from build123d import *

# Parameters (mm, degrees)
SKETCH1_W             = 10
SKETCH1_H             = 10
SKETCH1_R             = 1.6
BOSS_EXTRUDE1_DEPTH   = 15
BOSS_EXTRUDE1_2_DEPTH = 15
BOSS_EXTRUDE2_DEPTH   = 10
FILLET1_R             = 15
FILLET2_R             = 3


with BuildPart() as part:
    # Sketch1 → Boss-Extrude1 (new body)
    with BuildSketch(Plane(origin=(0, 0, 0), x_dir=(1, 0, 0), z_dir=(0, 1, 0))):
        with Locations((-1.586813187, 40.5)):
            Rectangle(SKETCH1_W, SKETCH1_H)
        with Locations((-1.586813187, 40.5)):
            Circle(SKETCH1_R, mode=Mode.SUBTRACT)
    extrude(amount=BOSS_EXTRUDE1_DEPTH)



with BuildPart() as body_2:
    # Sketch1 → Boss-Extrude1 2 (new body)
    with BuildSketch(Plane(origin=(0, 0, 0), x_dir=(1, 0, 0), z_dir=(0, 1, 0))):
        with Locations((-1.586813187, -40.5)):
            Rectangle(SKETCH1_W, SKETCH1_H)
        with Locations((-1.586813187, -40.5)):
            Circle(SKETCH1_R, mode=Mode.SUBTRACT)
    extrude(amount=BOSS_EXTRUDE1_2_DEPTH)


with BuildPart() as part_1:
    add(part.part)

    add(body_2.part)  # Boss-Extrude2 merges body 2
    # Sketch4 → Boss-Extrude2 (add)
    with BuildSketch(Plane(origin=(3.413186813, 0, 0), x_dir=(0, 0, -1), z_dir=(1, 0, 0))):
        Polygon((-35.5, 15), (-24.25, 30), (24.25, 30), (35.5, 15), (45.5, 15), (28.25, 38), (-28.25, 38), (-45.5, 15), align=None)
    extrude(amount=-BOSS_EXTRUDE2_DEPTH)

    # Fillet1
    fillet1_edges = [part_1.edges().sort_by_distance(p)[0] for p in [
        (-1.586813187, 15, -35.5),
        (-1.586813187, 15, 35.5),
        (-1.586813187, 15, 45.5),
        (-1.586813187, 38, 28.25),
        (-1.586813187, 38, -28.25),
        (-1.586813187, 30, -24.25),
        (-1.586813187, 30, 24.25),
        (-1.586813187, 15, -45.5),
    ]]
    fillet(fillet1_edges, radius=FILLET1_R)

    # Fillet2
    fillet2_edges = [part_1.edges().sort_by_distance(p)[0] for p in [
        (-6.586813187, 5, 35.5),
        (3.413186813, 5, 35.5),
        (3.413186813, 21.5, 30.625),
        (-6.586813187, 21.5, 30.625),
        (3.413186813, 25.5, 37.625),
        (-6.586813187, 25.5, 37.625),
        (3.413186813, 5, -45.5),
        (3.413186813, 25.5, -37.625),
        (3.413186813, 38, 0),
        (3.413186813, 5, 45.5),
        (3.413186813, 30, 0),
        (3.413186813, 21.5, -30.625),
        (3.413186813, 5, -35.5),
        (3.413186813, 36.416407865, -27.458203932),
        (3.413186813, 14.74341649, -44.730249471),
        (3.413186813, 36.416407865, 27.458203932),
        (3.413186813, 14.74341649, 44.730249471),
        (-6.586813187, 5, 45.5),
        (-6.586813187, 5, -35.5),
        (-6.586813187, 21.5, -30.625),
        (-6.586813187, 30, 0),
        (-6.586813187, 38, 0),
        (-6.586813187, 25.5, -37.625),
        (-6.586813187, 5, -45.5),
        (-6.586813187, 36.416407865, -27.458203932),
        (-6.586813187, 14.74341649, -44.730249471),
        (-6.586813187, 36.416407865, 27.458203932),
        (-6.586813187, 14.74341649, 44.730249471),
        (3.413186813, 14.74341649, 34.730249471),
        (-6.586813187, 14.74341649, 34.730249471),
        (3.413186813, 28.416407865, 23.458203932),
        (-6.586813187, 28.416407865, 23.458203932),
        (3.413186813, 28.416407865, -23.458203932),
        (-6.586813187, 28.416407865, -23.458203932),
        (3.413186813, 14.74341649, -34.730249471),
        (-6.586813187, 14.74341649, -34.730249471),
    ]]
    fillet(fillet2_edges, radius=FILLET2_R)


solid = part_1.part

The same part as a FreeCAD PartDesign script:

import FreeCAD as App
import Part
import Sketcher


def edges_at(feature, points):
    """Names of the edges that pass closest to the given points."""
    edges = feature.Shape.Edges
    near = lambda p: min(range(len(edges)), key=lambda i: edges[i].distToShape(Part.Vertex(*p))[0])
    return sorted({f"Edge{near(p) + 1}" for p in points})

doc = App.newDocument("Part")
body = doc.addObject("PartDesign::Body", "Body")

sketch1 = body.newObject("Sketcher::SketchObject", "Sketch")
sketch1.AttachmentSupport = (doc.getObject("XZ_Plane"), [""])
sketch1.MapMode = "FlatFace"
sketch1.addGeometry(Part.LineSegment(App.Vector(-6.586813, -45.5, 0), App.Vector(-6.586813, -35.5, 0)), False)
sketch1.addGeometry(Part.LineSegment(App.Vector(-6.586813, -35.5, 0), App.Vector(3.413187, -35.5, 0)), False)
sketch1.addGeometry(Part.LineSegment(App.Vector(3.413187, -35.5, 0), App.Vector(3.413187, -45.5, 0)), False)
sketch1.addGeometry(Part.LineSegment(App.Vector(3.413187, -45.5, 0), App.Vector(-6.586813, -45.5, 0)), False)
sketch1.addGeometry(Part.Circle(App.Vector(-1.586813, -40.5, 0), App.Vector(0, 0, 1), 1.6), False)
sketch1.addConstraint(Sketcher.Constraint("Coincident", 0, 2, 1, 1))
sketch1.addConstraint(Sketcher.Constraint("Coincident", 1, 2, 2, 1))
sketch1.addConstraint(Sketcher.Constraint("Coincident", 2, 2, 3, 1))
sketch1.addConstraint(Sketcher.Constraint("Coincident", 3, 2, 0, 1))
sketch1.addConstraint(Sketcher.Constraint("Vertical", 0))
sketch1.addConstraint(Sketcher.Constraint("Horizontal", 1))
sketch1.addConstraint(Sketcher.Constraint("Vertical", 2))
sketch1.addConstraint(Sketcher.Constraint("Horizontal", 3))
sketch1.addConstraint(Sketcher.Constraint("Equal", 3, 0))
sketch1.addConstraint(Sketcher.Constraint("Diameter", 4, 3.2))
sketch1.addConstraint(Sketcher.Constraint("DistanceX", 1, 1, 1, 2, 10.0))
sketch1.addConstraint(Sketcher.Constraint("DistanceX", 0, 2, 4, 3, 5.0))
sketch1.addConstraint(Sketcher.Constraint("DistanceY", 4, 3, 0, 2, 5.0))
sketch1.addConstraint(Sketcher.Constraint("DistanceY", 4, 3, -1, 1, 40.5))
sketch1.addConstraint(Sketcher.Constraint("DistanceX", 4, 3, -1, 1, 1.586813))
pad1 = body.newObject("PartDesign::Pad", "Pad")
pad1.Profile = sketch1
pad1.Length = 15
pad1.Reversed = True
body2 = doc.addObject("PartDesign::Body", "Body001")

sketch2 = body2.newObject("Sketcher::SketchObject", "Sketch001")
sketch2.AttachmentSupport = (doc.getObject("XZ_Plane001"), [""])
sketch2.MapMode = "FlatFace"
sketch2.addGeometry(Part.LineSegment(App.Vector(-6.586813, 35.5, 0), App.Vector(-6.586813, 45.5, 0)), False)
sketch2.addGeometry(Part.LineSegment(App.Vector(-6.586813, 45.5, 0), App.Vector(3.413187, 45.5, 0)), False)
sketch2.addGeometry(Part.LineSegment(App.Vector(3.413187, 45.5, 0), App.Vector(3.413187, 35.5, 0)), False)
sketch2.addGeometry(Part.LineSegment(App.Vector(3.413187, 35.5, 0), App.Vector(-6.586813, 35.5, 0)), False)
sketch2.addGeometry(Part.Circle(App.Vector(-1.586813, 40.5, 0), App.Vector(0, 0, 1), 1.6), False)
sketch2.addConstraint(Sketcher.Constraint("Coincident", 0, 2, 1, 1))
sketch2.addConstraint(Sketcher.Constraint("Coincident", 1, 2, 2, 1))
sketch2.addConstraint(Sketcher.Constraint("Coincident", 2, 2, 3, 1))
sketch2.addConstraint(Sketcher.Constraint("Coincident", 3, 2, 0, 1))
sketch2.addConstraint(Sketcher.Constraint("Vertical", 0))
sketch2.addConstraint(Sketcher.Constraint("Horizontal", 1))
sketch2.addConstraint(Sketcher.Constraint("Vertical", 2))
sketch2.addConstraint(Sketcher.Constraint("Horizontal", 3))
sketch2.addConstraint(Sketcher.Constraint("Equal", 3, 0))
sketch2.addConstraint(Sketcher.Constraint("Diameter", 4, 3.2))
sketch2.addConstraint(Sketcher.Constraint("DistanceX", 1, 1, 1, 2, 10.0))
sketch2.addConstraint(Sketcher.Constraint("DistanceX", 0, 2, 4, 3, 5.0))
sketch2.addConstraint(Sketcher.Constraint("DistanceY", 4, 3, 0, 2, 5.0))
sketch2.addConstraint(Sketcher.Constraint("DistanceY", -1, 1, 4, 3, 40.5))
sketch2.addConstraint(Sketcher.Constraint("DistanceX", 4, 3, -1, 1, 1.586813))
pad2 = body2.newObject("PartDesign::Pad", "Pad001")
pad2.Profile = sketch2
pad2.Length = 15
pad2.Reversed = True
body.AllowCompound = True
doc.recompute()

boolean = body.newObject("PartDesign::Boolean", "Boolean")
boolean.Type = "Fuse"
boolean.addObjects([body2])

sketch3 = body.newObject("Sketcher::SketchObject", "Sketch002")
sketch3.AttachmentSupport = (doc.getObject("YZ_Plane"), [""])
sketch3.MapMode = "FlatFace"
sketch3.AttachmentOffset = App.Placement(App.Vector(0, 0, 3.413187), App.Rotation())
sketch3.addGeometry(Part.LineSegment(App.Vector(15, 35.5, 0), App.Vector(30, 24.25, 0)), False)
sketch3.addGeometry(Part.LineSegment(App.Vector(30, 24.25, 0), App.Vector(30, -24.25, 0)), False)
sketch3.addGeometry(Part.LineSegment(App.Vector(30, -24.25, 0), App.Vector(15, -35.5, 0)), False)
sketch3.addGeometry(Part.LineSegment(App.Vector(15, -35.5, 0), App.Vector(15, -45.5, 0)), False)
sketch3.addGeometry(Part.LineSegment(App.Vector(15, -45.5, 0), App.Vector(38, -28.25, 0)), False)
sketch3.addGeometry(Part.LineSegment(App.Vector(38, -28.25, 0), App.Vector(38, 28.25, 0)), False)
sketch3.addGeometry(Part.LineSegment(App.Vector(38, 28.25, 0), App.Vector(15, 45.5, 0)), False)
sketch3.addGeometry(Part.LineSegment(App.Vector(15, 45.5, 0), App.Vector(15, 35.5, 0)), False)
sketch3.addConstraint(Sketcher.Constraint("Coincident", 0, 2, 1, 1))
sketch3.addConstraint(Sketcher.Constraint("Coincident", 1, 2, 2, 1))
sketch3.addConstraint(Sketcher.Constraint("Coincident", 2, 2, 3, 1))
sketch3.addConstraint(Sketcher.Constraint("Coincident", 3, 2, 4, 1))
sketch3.addConstraint(Sketcher.Constraint("Coincident", 4, 2, 5, 1))
sketch3.addConstraint(Sketcher.Constraint("Coincident", 5, 2, 6, 1))
sketch3.addConstraint(Sketcher.Constraint("Coincident", 6, 2, 7, 1))
sketch3.addConstraint(Sketcher.Constraint("Coincident", 7, 2, 0, 1))
sketch3.addConstraint(Sketcher.Constraint("Vertical", 1))
sketch3.addConstraint(Sketcher.Constraint("Vertical", 3))
sketch3.addConstraint(Sketcher.Constraint("Vertical", 5))
sketch3.addConstraint(Sketcher.Constraint("Vertical", 7))
sketch3.addConstraint(Sketcher.Constraint("Symmetric", 3, 2, 6, 2, -1))
sketch3.addConstraint(Sketcher.Constraint("Parallel", 2, 4))
sketch3.addConstraint(Sketcher.Constraint("Parallel", 0, 6))
sketch3.addConstraint(Sketcher.Constraint("Equal", 3, 7))
sketch3.addConstraint(Sketcher.Constraint("Equal", 0, 2))
sketch3.addConstraint(Sketcher.Constraint("DistanceY", 3, 2, 3, 1, 10.0))
sketch3.addConstraint(Sketcher.Constraint("DistanceY", 1, 2, 1, 1, 48.5))
sketch3.addConstraint(Sketcher.Constraint("DistanceY", 5, 1, 5, 2, 56.5))
sketch3.addConstraint(Sketcher.Constraint("DistanceX", -1, 1, 0, 2, 30.0))
sketch3.addConstraint(Sketcher.Constraint("DistanceX", -1, 1, 2, 2, 15.0))
sketch3.addConstraint(Sketcher.Constraint("DistanceX", -1, 1, 4, 2, 38.0))
pad3 = body.newObject("PartDesign::Pad", "Pad002")
pad3.Profile = sketch3
pad3.Length = 10
pad3.Reversed = True
doc.recompute()

fillet = body.newObject("PartDesign::Fillet", "Fillet")
fillet.Base = (pad3, edges_at(pad3, [
    (-1.587, 15, -35.5),
    (-1.587, 15, 35.5),
    (-1.587, 15, 45.5),
    (-1.587, 38, 28.25),
    (-1.587, 38, -28.25),
    (-1.587, 30, -24.25),
    (-1.587, 30, 24.25),
    (-1.587, 15, -45.5),
]))
fillet.Radius = 15
doc.recompute()

fillet2 = body.newObject("PartDesign::Fillet", "Fillet001")
fillet2.Base = (fillet, edges_at(fillet, [
    (-6.587, 5, 35.5),
    (3.413, 5, 35.5),
    (3.413, 21.5, 30.625),
    (-6.587, 21.5, 30.625),
    (3.413, 25.5, 37.625),
    (-6.587, 25.5, 37.625),
    (3.413, 5, -45.5),
    (3.413, 25.5, -37.625),
    (3.413, 38, 0),
    (3.413, 5, 45.5),
    (3.413, 30, 0),
    (3.413, 21.5, -30.625),
    (3.413, 5, -35.5),
    (3.413, 36.416, -27.458),
    (3.413, 14.743, -44.73),
    (3.413, 36.416, 27.458),
    (3.413, 14.743, 44.73),
    (-6.587, 5, 45.5),
    (-6.587, 5, -35.5),
    (-6.587, 21.5, -30.625),
    (-6.587, 30, 0),
    (-6.587, 38, 0),
    (-6.587, 25.5, -37.625),
    (-6.587, 5, -45.5),
    (-6.587, 36.416, -27.458),
    (-6.587, 14.743, -44.73),
    (-6.587, 36.416, 27.458),
    (-6.587, 14.743, 44.73),
    (3.413, 14.743, 34.73),
    (-6.587, 14.743, 34.73),
    (3.413, 28.416, 23.458),
    (-6.587, 28.416, 23.458),
    (3.413, 28.416, -23.458),
    (-6.587, 28.416, -23.458),
    (3.413, 14.743, -34.73),
    (-6.587, 14.743, -34.73),
]))
fillet2.Radius = 3

doc.recompute()
